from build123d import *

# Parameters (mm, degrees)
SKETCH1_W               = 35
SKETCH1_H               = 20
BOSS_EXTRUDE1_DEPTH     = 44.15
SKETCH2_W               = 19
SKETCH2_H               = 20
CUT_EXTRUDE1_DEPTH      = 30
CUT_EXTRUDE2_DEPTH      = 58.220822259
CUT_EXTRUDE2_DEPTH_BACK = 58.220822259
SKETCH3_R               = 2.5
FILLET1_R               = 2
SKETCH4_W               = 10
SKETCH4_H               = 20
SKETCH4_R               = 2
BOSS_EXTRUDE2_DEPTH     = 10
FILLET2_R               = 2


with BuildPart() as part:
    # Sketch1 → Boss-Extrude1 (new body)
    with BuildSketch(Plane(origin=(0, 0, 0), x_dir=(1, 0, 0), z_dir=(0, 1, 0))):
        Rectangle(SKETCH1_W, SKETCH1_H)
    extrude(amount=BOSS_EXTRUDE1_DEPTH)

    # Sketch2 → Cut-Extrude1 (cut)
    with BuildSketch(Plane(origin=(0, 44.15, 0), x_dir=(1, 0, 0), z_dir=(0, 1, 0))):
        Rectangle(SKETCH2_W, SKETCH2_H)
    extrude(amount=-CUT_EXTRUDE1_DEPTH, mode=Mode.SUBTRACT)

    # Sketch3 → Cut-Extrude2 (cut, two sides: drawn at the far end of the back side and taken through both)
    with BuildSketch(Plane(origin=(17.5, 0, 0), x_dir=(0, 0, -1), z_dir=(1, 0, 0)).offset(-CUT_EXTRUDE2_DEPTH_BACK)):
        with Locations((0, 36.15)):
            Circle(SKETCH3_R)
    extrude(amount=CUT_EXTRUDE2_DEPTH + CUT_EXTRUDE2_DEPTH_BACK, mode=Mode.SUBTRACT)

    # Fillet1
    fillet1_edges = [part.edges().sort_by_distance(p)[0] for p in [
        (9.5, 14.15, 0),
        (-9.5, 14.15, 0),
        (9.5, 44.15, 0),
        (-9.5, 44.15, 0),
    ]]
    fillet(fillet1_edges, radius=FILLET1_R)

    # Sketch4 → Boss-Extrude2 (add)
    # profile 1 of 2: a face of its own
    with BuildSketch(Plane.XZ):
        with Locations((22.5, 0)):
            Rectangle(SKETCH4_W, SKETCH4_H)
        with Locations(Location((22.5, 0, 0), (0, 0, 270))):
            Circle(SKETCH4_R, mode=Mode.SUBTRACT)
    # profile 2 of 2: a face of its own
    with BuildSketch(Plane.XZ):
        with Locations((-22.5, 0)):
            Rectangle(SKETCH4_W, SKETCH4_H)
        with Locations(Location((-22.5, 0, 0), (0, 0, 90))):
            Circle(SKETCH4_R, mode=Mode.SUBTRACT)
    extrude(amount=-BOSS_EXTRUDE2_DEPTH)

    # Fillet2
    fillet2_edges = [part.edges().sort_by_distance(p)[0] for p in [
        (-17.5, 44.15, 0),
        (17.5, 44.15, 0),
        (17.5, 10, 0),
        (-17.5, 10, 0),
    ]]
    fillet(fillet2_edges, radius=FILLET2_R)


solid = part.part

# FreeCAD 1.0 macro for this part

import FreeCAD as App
import Part
import Sketcher
Q = App.Units.Quantity


def edges_at(feature, points):
    """Names of the edges that pass closest to the given points."""
    edges = feature.Shape.Edges
    near = lambda p: min(range(len(edges)), key=lambda i: edges[i].distToShape(Part.Vertex(*p))[0])
    return sorted({f"Edge{near(p) + 1}" for p in points})


def add_polygon(sketch, points):
    """Adds a closed chain of lines whose ends are joined by coincident constraints."""
    first, n = sketch.GeometryCount, len(points)
    for a, b in zip(points, points[1:] + points[:1]):
        sketch.addGeometry(Part.LineSegment(App.Vector(*a, 0), App.Vector(*b, 0)), False)
    for i in range(n):
        sketch.addConstraint(Sketcher.Constraint("Coincident", first + i, 2, first + (i + 1) % n, 1))

doc = App.newDocument("Part")
body = doc.addObject("PartDesign::Body", "Body")

# Sketch on XZ plane
sketch1 = doc.addObject("Sketcher::SketchObject", "Sketch")
body.addObject(sketch1)
sketch1.AttachmentSupport = (doc.XZ_Plane, [""])
sketch1.MapMode = "FlatFace"
add_polygon(sketch1, [(-18, -10), (-18, 10), (18, 10), (18, -10)])  # lines 0-3
sketch1.addConstraint([
    Sketcher.Constraint("Vertical", 0),
    Sketcher.Constraint("Horizontal", 1),
    Sketcher.Constraint("Vertical", 2),
    Sketcher.Constraint("Horizontal", 3),
    Sketcher.Constraint("Symmetric", 0, 2, 2, 2, -1, 1),
    Sketcher.Constraint("DistanceX", 1, 1, 1, 2, Q("35 mm")),
    Sketcher.Constraint("DistanceY", 0, 1, 0, 2, Q("20 mm")),
])
pad1 = doc.addObject("PartDesign::Pad", "Pad")
body.addObject(pad1)
pad1.Profile = sketch1
pad1.Length = 44.15
pad1.Reversed = True

# Sketch on XZ plane
sketch2 = doc.addObject("Sketcher::SketchObject", "Sketch001")
body.addObject(sketch2)
sketch2.AttachmentSupport = (doc.XZ_Plane, [""])
sketch2.MapMode = "FlatFace"
sketch2.AttachmentOffset = App.Placement(App.Vector(0, 0, -44.15), App.Rotation())
add_polygon(sketch2, [(-10, -10), (-10, 10), (10, 10), (10, -10)])  # lines 0-3
sketch2.addConstraint([
    Sketcher.Constraint("Vertical", 0),
    Sketcher.Constraint("Horizontal", 1),
    Sketcher.Constraint("Vertical", 2),
    Sketcher.Constraint("Horizontal", 3),
    Sketcher.Constraint("Symmetric", 0, 2, 2, 2, -1, 1),
    Sketcher.Constraint("DistanceX", 1, 1, 1, 2, Q("19 mm")),
    Sketcher.Constraint("DistanceY", 0, 1, 0, 2, Q("20 mm")),
])
pocket1 = doc.addObject("PartDesign::Pocket", "Pocket")
body.addObject(pocket1)
pocket1.Profile = sketch2
pocket1.Length = 30
pocket1.Reversed = True

# Sketch on YZ plane
sketch3 = doc.addObject("Sketcher::SketchObject", "Sketch002")
body.addObject(sketch3)
sketch3.AttachmentSupport = (doc.YZ_Plane, [""])
sketch3.MapMode = "FlatFace"
sketch3.AttachmentOffset = App.Placement(App.Vector(0, 0, 17.5), App.Rotation())
sketch3.addGeometry(Part.Circle(App.Vector(36.1, 0, 0), App.Vector(0, 0, 1), 2.5), False)
sketch3.addConstraint([
    Sketcher.Constraint("PointOnObject", 0, 3, -1),
    Sketcher.Constraint("Diameter", 0, Q("5 mm")),
    Sketcher.Constraint("DistanceX", -1, 1, 0, 3, Q("36.15 mm")),
])
pocket2 = doc.addObject("PartDesign::Pocket", "Pocket001")
body.addObject(pocket2)
pocket2.Profile = sketch3
pocket2.Type = "ThroughAll"
pocket2.Midplane = True
doc.recompute()

fillet = doc.addObject("PartDesign::Fillet", "Fillet")
body.addObject(fillet)
fillet.Base = (pocket2, edges_at(pocket2, [
    (9.5, 14.15, 0),
    (-9.5, 14.15, 0),
    (9.5, 44.15, 0),
    (-9.5, 44.15, 0),
]))
fillet.Radius = 2

# Sketch on XZ plane
sketch4 = doc.addObject("Sketcher::SketchObject", "Sketch003")
body.addObject(sketch4)
sketch4.AttachmentSupport = (doc.XZ_Plane, [""])
sketch4.MapMode = "FlatFace"
add_polygon(sketch4, [(17.5, 10), (17.5, -10), (27.5, -10), (27.5, 10)])  # lines 0-3
sketch4.addGeometry(Part.Circle(App.Vector(22.5, 0, 0), App.Vector(0, 0, 1), 2), False)  # 4
add_polygon(sketch4, [(-27.5, 10), (-27.5, -10), (-17.5, -10), (-17.5, 10)])  # lines 5-8
sketch4.addGeometry(Part.Circle(App.Vector(-22.5, 0, 0), App.Vector(0, 0, 1), 2), False)  # 9
sketch4.addConstraint([
    Sketcher.Constraint("Vertical", 0),
    Sketcher.Constraint("Horizontal", 1),
    Sketcher.Constraint("Vertical", 2),
    Sketcher.Constraint("Horizontal", 3),
    Sketcher.Constraint("Vertical", 5),
    Sketcher.Constraint("Horizontal", 6),
    Sketcher.Constraint("Vertical", 7),
    Sketcher.Constraint("Horizontal", 8),
    Sketcher.Constraint("Equal", 4, 9),
    Sketcher.Constraint("Symmetric", 4, 3, 9, 3, -1, 1),
    Sketcher.Constraint("Symmetric", 2, 2, 5, 2, -1, 1),
    Sketcher.Constraint("Symmetric", 0, 2, 7, 2, -1, 1),
    Sketcher.Constraint("PointOnObject", 4, 3, -1),
    Sketcher.Constraint("Horizontal", 1, 2, 5, 2),
    Sketcher.Constraint("Diameter", 4, Q("4 mm")),
    Sketcher.Constraint("DistanceX", 1, 1, 1, 2, Q("10 mm")),
    Sketcher.Constraint("DistanceY", 0, 2, 0, 1, Q("20 mm")),
    Sketcher.Constraint("DistanceX", 9, 3, 4, 3, Q("45 mm")),
    Sketcher.Constraint("DistanceX", 0, 2, 4, 3, Q("5 mm")),
])
pad2 = doc.addObject("PartDesign::Pad", "Pad001")
body.addObject(pad2)
pad2.Profile = sketch4
pad2.Length = 10
pad2.Reversed = True
doc.recompute()

fillet2 = doc.addObject("PartDesign::Fillet", "Fillet001")
body.addObject(fillet2)
fillet2.Base = (pad2, edges_at(pad2, [
    (-17.5, 44.15, 0),
    (17.5, 44.15, 0),
    (17.5, 10, 0),
    (-17.5, 10, 0),
]))
fillet2.Radius = 2

doc.recompute()
